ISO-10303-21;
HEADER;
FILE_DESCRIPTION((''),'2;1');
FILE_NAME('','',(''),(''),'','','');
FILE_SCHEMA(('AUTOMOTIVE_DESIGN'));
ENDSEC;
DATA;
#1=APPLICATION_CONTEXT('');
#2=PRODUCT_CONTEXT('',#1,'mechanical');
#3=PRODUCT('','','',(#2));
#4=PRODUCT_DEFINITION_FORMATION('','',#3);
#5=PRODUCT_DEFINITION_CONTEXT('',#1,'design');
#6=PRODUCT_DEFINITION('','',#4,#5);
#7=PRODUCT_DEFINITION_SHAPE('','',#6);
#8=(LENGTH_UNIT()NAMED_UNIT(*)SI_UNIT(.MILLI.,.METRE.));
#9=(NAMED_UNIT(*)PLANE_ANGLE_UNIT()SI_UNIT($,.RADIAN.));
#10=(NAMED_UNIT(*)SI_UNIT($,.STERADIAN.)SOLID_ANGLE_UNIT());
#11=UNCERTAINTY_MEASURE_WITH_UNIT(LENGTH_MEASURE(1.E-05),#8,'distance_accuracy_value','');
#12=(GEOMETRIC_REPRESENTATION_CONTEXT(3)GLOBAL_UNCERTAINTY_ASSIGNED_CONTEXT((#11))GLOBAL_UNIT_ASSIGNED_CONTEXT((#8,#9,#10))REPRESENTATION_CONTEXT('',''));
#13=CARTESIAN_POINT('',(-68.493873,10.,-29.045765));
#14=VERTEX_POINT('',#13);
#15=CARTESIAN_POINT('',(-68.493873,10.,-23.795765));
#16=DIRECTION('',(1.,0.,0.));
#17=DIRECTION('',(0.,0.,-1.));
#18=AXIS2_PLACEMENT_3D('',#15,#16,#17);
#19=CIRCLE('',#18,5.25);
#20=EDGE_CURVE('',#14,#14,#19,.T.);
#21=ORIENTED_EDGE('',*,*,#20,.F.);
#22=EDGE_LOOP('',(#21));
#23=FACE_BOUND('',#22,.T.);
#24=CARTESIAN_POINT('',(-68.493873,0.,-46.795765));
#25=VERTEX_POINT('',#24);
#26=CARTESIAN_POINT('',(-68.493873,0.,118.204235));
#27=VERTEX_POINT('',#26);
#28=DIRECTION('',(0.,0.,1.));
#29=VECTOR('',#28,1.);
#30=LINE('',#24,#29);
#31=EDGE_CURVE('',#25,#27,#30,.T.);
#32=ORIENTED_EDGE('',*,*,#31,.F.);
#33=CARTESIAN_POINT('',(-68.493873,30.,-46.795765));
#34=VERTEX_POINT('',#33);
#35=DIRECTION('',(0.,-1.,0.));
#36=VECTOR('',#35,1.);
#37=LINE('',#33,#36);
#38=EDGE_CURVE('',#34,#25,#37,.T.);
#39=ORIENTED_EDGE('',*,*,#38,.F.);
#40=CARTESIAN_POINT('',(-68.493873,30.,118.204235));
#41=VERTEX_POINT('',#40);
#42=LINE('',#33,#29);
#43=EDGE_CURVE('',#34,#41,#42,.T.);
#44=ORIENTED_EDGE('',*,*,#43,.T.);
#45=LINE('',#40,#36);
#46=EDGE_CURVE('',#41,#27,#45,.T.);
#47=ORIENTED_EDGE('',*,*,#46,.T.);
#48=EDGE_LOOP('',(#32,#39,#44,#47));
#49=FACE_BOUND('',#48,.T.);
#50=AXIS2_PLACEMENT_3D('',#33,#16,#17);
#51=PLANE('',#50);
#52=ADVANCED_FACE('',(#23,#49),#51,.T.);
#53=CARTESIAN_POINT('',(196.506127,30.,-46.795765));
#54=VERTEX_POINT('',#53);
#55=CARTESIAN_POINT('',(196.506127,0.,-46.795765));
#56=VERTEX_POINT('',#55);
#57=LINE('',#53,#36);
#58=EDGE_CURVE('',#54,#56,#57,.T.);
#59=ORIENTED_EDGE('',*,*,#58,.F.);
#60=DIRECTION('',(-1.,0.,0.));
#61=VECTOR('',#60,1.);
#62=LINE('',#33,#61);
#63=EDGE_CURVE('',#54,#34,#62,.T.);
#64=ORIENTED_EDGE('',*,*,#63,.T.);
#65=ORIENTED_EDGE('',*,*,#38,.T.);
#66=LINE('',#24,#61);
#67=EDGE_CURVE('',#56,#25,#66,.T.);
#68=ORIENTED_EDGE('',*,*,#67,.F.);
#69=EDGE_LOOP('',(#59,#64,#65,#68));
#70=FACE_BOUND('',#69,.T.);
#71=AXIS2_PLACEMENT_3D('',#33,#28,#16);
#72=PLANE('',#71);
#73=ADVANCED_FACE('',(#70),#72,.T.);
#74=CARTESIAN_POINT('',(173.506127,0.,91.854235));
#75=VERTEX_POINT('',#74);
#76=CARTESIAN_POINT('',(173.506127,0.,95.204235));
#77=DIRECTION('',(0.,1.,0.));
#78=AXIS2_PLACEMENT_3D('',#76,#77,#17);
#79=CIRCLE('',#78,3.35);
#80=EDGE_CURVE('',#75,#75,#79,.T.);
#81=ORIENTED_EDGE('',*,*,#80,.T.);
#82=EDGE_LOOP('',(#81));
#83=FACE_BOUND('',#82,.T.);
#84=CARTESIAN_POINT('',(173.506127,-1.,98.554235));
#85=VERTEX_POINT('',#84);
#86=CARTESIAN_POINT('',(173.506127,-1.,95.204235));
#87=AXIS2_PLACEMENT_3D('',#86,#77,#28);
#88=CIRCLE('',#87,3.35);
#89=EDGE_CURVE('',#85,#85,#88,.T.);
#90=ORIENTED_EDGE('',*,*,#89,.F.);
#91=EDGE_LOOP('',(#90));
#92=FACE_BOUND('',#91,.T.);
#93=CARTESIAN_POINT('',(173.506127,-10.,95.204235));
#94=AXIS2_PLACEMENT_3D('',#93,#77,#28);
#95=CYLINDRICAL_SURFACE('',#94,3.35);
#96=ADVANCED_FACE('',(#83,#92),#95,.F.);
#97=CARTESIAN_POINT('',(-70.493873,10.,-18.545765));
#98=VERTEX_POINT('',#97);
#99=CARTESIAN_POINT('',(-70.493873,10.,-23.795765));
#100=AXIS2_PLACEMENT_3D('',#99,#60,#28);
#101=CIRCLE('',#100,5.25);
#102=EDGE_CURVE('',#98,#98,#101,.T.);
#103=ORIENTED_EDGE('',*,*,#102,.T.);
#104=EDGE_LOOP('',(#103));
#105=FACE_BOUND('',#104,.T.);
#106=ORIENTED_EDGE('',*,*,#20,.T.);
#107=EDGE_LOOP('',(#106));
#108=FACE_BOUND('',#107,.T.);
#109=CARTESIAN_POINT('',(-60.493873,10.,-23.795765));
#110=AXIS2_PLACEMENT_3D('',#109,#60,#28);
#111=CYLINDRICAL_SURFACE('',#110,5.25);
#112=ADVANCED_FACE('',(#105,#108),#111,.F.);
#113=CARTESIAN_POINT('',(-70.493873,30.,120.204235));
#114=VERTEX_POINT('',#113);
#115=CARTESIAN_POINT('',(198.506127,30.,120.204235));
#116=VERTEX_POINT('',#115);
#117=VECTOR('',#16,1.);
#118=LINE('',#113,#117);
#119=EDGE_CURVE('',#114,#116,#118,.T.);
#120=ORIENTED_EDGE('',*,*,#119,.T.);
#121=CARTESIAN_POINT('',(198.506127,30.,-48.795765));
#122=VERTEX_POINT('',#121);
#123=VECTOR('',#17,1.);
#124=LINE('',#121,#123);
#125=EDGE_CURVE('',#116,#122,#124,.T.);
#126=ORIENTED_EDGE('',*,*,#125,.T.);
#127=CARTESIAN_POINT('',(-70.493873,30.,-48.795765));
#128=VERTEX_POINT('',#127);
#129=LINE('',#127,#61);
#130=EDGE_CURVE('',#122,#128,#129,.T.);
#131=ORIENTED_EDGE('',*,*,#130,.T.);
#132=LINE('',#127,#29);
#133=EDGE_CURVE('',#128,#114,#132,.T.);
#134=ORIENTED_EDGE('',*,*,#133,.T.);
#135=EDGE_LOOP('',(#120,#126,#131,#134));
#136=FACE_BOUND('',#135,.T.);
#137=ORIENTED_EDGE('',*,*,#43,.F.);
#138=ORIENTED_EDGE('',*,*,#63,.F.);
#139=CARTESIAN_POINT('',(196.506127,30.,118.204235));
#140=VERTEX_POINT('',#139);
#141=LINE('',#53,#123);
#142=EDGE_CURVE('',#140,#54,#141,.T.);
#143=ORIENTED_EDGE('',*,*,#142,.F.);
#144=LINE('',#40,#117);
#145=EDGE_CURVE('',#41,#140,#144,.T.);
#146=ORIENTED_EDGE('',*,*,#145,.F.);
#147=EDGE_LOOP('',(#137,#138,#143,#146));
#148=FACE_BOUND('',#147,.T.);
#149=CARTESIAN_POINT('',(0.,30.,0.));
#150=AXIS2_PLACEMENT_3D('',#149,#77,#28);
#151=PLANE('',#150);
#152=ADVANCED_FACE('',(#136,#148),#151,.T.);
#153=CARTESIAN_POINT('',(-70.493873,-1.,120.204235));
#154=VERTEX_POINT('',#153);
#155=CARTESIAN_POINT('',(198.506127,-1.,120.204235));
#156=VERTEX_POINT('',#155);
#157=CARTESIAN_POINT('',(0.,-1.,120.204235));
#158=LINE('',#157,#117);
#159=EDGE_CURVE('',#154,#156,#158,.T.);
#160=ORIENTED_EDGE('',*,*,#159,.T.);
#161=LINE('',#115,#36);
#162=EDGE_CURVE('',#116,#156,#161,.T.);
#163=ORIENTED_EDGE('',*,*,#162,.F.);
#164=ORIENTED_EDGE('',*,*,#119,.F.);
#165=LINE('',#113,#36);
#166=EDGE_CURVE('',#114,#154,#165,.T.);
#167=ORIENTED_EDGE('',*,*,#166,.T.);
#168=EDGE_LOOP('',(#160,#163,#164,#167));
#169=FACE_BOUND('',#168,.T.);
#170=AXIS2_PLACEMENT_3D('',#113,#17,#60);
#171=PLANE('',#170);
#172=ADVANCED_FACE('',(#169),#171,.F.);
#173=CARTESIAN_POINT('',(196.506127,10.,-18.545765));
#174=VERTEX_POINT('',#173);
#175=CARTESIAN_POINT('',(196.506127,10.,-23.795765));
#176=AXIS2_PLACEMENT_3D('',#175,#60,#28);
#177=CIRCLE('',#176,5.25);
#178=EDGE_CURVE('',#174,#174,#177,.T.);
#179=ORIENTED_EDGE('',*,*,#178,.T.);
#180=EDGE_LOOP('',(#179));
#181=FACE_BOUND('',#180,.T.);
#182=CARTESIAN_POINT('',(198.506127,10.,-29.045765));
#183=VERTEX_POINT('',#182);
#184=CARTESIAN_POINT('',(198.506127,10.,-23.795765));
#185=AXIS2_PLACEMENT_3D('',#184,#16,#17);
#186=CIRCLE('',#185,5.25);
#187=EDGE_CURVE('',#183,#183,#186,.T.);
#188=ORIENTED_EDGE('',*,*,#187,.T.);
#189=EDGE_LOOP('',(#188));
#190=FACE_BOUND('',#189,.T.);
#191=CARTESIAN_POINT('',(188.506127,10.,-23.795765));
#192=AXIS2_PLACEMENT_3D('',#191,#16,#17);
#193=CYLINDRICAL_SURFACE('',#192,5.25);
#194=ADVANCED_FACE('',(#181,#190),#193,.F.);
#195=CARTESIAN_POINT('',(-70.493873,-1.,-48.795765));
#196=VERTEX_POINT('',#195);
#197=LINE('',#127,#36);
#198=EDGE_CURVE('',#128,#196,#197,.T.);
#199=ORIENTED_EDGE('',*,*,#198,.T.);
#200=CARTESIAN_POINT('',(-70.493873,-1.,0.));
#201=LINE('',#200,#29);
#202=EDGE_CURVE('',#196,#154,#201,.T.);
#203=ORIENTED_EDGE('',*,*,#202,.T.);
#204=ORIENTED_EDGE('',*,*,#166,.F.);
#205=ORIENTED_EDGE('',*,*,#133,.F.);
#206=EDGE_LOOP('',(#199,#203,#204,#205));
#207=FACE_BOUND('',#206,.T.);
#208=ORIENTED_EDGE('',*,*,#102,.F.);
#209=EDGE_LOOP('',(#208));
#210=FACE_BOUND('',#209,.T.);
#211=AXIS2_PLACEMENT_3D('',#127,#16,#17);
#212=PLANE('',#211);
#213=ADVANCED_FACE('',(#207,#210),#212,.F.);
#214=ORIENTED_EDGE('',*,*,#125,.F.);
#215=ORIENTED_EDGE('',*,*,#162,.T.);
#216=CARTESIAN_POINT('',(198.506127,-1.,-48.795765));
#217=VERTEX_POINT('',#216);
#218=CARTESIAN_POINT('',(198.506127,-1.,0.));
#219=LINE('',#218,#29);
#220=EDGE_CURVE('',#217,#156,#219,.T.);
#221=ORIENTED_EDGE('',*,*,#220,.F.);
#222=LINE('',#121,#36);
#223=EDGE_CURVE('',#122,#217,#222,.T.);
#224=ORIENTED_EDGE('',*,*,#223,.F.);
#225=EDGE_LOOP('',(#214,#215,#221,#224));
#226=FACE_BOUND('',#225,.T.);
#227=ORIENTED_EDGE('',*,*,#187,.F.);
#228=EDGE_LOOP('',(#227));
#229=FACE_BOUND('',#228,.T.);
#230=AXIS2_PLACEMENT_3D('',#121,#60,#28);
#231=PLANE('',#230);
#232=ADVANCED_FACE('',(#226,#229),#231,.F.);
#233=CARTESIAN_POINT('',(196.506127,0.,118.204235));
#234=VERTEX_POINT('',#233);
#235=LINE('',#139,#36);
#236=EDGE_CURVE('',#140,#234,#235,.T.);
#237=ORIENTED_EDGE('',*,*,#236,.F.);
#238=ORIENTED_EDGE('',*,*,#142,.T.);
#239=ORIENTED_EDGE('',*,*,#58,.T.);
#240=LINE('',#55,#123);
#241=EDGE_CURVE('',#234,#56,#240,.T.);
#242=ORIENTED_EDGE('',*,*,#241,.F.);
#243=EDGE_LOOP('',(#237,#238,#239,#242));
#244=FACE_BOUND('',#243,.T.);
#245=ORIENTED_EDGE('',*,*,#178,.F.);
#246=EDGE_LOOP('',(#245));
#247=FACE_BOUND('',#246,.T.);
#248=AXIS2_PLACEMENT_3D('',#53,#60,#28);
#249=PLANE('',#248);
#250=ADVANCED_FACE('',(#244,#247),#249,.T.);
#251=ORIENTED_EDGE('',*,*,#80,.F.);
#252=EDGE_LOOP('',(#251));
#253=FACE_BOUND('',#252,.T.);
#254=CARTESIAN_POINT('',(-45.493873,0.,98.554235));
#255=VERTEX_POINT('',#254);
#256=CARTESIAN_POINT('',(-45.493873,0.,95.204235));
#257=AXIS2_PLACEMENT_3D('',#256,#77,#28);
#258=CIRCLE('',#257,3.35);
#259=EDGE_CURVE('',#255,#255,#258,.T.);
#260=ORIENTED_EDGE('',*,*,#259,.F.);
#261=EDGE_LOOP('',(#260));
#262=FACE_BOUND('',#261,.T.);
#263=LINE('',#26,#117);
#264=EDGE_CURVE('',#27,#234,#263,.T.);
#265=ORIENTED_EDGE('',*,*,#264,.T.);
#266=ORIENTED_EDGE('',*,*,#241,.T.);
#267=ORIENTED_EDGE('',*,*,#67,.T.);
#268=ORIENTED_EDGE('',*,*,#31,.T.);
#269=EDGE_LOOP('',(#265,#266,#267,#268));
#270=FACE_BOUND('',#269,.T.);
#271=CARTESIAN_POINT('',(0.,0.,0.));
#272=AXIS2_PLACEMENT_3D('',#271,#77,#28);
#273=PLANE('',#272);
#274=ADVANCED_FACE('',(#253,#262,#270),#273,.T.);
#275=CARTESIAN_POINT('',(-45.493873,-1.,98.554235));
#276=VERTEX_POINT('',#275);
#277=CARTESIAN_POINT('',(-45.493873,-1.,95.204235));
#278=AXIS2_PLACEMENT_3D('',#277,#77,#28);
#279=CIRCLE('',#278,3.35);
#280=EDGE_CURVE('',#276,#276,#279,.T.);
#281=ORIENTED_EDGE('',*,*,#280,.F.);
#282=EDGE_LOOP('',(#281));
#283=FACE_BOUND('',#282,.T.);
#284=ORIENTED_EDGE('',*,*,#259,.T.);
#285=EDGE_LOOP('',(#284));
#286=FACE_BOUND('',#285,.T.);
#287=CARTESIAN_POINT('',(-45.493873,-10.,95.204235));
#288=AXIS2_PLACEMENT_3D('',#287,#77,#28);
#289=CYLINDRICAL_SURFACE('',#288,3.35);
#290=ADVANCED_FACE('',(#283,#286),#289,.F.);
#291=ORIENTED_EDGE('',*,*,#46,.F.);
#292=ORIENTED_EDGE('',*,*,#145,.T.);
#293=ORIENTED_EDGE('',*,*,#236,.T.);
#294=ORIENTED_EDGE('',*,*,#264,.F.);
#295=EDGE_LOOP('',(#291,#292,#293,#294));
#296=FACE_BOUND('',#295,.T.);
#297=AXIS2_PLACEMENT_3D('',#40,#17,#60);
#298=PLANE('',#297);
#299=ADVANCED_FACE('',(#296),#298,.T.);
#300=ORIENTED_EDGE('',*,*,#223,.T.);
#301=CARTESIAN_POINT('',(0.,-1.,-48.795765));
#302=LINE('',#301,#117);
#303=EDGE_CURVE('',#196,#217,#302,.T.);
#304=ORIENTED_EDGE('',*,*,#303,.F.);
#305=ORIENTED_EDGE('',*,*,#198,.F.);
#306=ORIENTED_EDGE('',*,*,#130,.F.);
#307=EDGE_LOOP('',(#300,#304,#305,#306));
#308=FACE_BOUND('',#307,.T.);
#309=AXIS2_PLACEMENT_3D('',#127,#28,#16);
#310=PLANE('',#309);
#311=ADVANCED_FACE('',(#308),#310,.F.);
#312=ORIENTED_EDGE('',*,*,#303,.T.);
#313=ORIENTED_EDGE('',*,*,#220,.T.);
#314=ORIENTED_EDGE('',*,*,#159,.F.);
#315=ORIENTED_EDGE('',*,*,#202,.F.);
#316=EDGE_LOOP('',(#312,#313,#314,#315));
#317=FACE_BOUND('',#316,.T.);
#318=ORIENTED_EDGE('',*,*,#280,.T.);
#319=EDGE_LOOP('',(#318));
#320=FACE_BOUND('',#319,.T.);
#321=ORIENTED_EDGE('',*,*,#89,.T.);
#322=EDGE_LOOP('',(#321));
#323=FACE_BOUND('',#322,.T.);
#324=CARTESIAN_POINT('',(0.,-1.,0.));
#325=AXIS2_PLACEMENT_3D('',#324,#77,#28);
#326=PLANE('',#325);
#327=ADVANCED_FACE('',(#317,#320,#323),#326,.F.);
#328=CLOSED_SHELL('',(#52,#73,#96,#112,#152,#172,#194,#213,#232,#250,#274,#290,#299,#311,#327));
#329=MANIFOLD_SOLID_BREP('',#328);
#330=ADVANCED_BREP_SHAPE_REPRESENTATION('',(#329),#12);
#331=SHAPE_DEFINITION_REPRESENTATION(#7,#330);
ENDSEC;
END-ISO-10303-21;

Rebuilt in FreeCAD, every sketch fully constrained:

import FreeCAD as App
import Part
import Sketcher
from FreeCAD import Vector


def add_polygon(sketch, points):
    """Adds a closed chain of lines whose ends are joined by coincident constraints."""
    first, n = sketch.GeometryCount, len(points)
    for a, b in zip(points, points[1:] + points[:1]):
        sketch.addGeometry(Part.LineSegment(App.Vector(*a, 0), App.Vector(*b, 0)), False)
    for i in range(n):
        sketch.addConstraint(Sketcher.Constraint("Coincident", first + i, 2, first + (i + 1) % n, 1))

doc = App.newDocument("Part")
params = doc.addObject("Spreadsheet::Sheet", "Params")
for row, (alias, value) in enumerate([
    ("sketch1_width", "269 mm"),
    ("sketch1_width2", "265 mm"),
    ("sketch1_height", "169 mm"),
    ("sketch1_height2", "165 mm"),
    ("pad1_length", "30 mm"),
    ("sketch2_width", "269 mm"),
    ("sketch2_height", "169 mm"),
    ("pad2_length", "1 mm"),
    ("sketch3_diameter", "10.5 mm"),
    ("pocket1_length", "10 mm"),
    ("sketch4_diameter", "10.5 mm"),
    ("pocket2_length", "10 mm"),
    ("sketch5_diameter", "6.7 mm"),
    ("pocket3_length", "10 mm"),
], start=1):
    params.set(f"A{row}", alias)
    params.set(f"B{row}", "=" + value)
    params.setAlias(f"B{row}", alias)

body = doc.addObject("PartDesign::Body", "Body")

sketch1 = doc.addObject("Sketcher::SketchObject", "Sketch")
body.addObject(sketch1)
sketch1.AttachmentSupport = (doc.XZ_Plane, [""])
sketch1.MapMode = "FlatFace"
add_polygon(sketch1, [(-70, -49), (-70, 120), (199, 120), (199, -49)])
add_polygon(sketch1, [(197, 118), (-68, 118), (-68, -47), (197, -47)])
sketch1.addConstraint([
    Sketcher.Constraint("Vertical", 0),
    Sketcher.Constraint("Horizontal", 1),
    Sketcher.Constraint("Vertical", 2),
    Sketcher.Constraint("Horizontal", 3),
    Sketcher.Constraint("Horizontal", 4),
    Sketcher.Constraint("Vertical", 5),
    Sketcher.Constraint("Horizontal", 6),
    Sketcher.Constraint("Vertical", 7),
    Sketcher.Constraint("DistanceX", 1, 1, 1, 2, 269.0),
    Sketcher.Constraint("DistanceX", 4, 2, 4, 1, 265.0),
    Sketcher.Constraint("DistanceY", 0, 1, 0, 2, 169.0),
    Sketcher.Constraint("DistanceY", 5, 2, 5, 1, 165.0),
    Sketcher.Constraint("DistanceX", 0, 2, 4, 2, 2.0),
    Sketcher.Constraint("DistanceY", 4, 2, 0, 2, 2.0),
    Sketcher.Constraint("DistanceX", 0, 2, -1, 1, 70.493873),
    Sketcher.Constraint("DistanceY", -1, 1, 0, 2, 120.204235),
])
sketch1.setExpression("Constraints[16]", "Params.sketch1_width")
sketch1.setExpression("Constraints[17]", "Params.sketch1_width2")
sketch1.setExpression("Constraints[18]", "Params.sketch1_height")
sketch1.setExpression("Constraints[19]", "Params.sketch1_height2")
pad1 = doc.addObject("PartDesign::Pad", "Pad")
body.addObject(pad1)
pad1.Profile = sketch1
pad1.setExpression("Length", "Params.pad1_length")
pad1.Reversed = True

sketch2 = doc.addObject("Sketcher::SketchObject", "Sketch001")
body.addObject(sketch2)
sketch2.AttachmentSupport = (doc.XZ_Plane, [""])
sketch2.MapMode = "FlatFace"
add_polygon(sketch2, [(-70, -49), (-70, 120), (199, 120), (199, -49)])
sketch2.addConstraint([
    Sketcher.Constraint("Vertical", 0),
    Sketcher.Constraint("Horizontal", 1),
    Sketcher.Constraint("Vertical", 2),
    Sketcher.Constraint("Horizontal", 3),
    Sketcher.Constraint("DistanceX", 1, 1, 1, 2, 269.0),
    Sketcher.Constraint("DistanceY", 0, 1, 0, 2, 169.0),
    Sketcher.Constraint("DistanceX", 0, 2, -1, 1, 70.493873),
    Sketcher.Constraint("DistanceY", -1, 1, 0, 2, 120.204235),
])
sketch2.setExpression("Constraints[8]", "Params.sketch2_width")
sketch2.setExpression("Constraints[9]", "Params.sketch2_height")
pad2 = doc.addObject("PartDesign::Pad", "Pad001")
body.addObject(pad2)
pad2.Profile = sketch2
pad2.setExpression("Length", "Params.pad2_length")

sketch3 = doc.addObject("Sketcher::SketchObject", "Sketch002")
body.addObject(sketch3)
sketch3.AttachmentSupport = (doc.YZ_Plane, [""])
sketch3.MapMode = "FlatFace"
sketch3.AttachmentOffset = App.Placement(Vector(0, 0, 198.506127), App.Rotation())
sketch3.addGeometry(Part.Circle(Vector(10, -24, 0), Vector(0, 0, 1), 5), False)
sketch3.addConstraint([
    Sketcher.Constraint("Diameter", 0, 10.5),
    Sketcher.Constraint("DistanceX", -1, 1, 0, 3, 10.0),
    Sketcher.Constraint("DistanceY", 0, 3, -1, 1, 23.795765),
])
sketch3.setExpression("Constraints[0]", "Params.sketch3_diameter")
pocket1 = doc.addObject("PartDesign::Pocket", "Pocket")
body.addObject(pocket1)
pocket1.Profile = sketch3
pocket1.setExpression("Length", "Params.pocket1_length")

sketch4 = doc.addObject("Sketcher::SketchObject", "Sketch003")
body.addObject(sketch4)
sketch4.AttachmentSupport = (doc.YZ_Plane, [""])
sketch4.MapMode = "FlatFace"
sketch4.AttachmentOffset = App.Placement(Vector(0, 0, -60.493873), App.Rotation())
sketch4.addGeometry(Part.Circle(Vector(10, -24, 0), Vector(0, 0, 1), 5), False)
sketch4.addConstraint([
    Sketcher.Constraint("Diameter", 0, 10.5),
    Sketcher.Constraint("DistanceX", -1, 1, 0, 3, 10.0),
    Sketcher.Constraint("DistanceY", 0, 3, -1, 1, 23.795765),
])
sketch4.setExpression("Constraints[0]", "Params.sketch4_diameter")
pocket2 = doc.addObject("PartDesign::Pocket", "Pocket001")
body.addObject(pocket2)
pocket2.Profile = sketch4
pocket2.setExpression("Length", "Params.pocket2_length")

sketch5 = doc.addObject("Sketcher::SketchObject", "Sketch004")
body.addObject(sketch5)
sketch5.AttachmentSupport = (doc.XZ_Plane, [""])
sketch5.MapMode = "FlatFace"
sketch5.addGeometry([
    Part.Circle(Vector(-45.5, 95.2, 0), Vector(0, 0, 1), 3.4),
    Part.Circle(Vector(173.5, 95.2, 0), Vector(0, 0, 1), 3.4),
], False)
sketch5.addConstraint([
    Sketcher.Constraint("Equal", 0, 1),
    Sketcher.Constraint("Horizontal", 0, 3, 1, 3),
    Sketcher.Constraint("Diameter", 0, 6.7),
    Sketcher.Constraint("DistanceX", 0, 3, 1, 3, 219.0),
    Sketcher.Constraint("DistanceX", 0, 3, -1, 1, 45.493873),
    Sketcher.Constraint("DistanceY", -1, 1, 0, 3, 95.204235),
])
sketch5.setExpression("Constraints[2]", "Params.sketch5_diameter")
pocket3 = doc.addObject("PartDesign::Pocket", "Pocket002")
body.addObject(pocket3)
pocket3.Profile = sketch5
pocket3.setExpression("Length", "Params.pocket3_length")
pocket3.Reversed = True

doc.recompute()
